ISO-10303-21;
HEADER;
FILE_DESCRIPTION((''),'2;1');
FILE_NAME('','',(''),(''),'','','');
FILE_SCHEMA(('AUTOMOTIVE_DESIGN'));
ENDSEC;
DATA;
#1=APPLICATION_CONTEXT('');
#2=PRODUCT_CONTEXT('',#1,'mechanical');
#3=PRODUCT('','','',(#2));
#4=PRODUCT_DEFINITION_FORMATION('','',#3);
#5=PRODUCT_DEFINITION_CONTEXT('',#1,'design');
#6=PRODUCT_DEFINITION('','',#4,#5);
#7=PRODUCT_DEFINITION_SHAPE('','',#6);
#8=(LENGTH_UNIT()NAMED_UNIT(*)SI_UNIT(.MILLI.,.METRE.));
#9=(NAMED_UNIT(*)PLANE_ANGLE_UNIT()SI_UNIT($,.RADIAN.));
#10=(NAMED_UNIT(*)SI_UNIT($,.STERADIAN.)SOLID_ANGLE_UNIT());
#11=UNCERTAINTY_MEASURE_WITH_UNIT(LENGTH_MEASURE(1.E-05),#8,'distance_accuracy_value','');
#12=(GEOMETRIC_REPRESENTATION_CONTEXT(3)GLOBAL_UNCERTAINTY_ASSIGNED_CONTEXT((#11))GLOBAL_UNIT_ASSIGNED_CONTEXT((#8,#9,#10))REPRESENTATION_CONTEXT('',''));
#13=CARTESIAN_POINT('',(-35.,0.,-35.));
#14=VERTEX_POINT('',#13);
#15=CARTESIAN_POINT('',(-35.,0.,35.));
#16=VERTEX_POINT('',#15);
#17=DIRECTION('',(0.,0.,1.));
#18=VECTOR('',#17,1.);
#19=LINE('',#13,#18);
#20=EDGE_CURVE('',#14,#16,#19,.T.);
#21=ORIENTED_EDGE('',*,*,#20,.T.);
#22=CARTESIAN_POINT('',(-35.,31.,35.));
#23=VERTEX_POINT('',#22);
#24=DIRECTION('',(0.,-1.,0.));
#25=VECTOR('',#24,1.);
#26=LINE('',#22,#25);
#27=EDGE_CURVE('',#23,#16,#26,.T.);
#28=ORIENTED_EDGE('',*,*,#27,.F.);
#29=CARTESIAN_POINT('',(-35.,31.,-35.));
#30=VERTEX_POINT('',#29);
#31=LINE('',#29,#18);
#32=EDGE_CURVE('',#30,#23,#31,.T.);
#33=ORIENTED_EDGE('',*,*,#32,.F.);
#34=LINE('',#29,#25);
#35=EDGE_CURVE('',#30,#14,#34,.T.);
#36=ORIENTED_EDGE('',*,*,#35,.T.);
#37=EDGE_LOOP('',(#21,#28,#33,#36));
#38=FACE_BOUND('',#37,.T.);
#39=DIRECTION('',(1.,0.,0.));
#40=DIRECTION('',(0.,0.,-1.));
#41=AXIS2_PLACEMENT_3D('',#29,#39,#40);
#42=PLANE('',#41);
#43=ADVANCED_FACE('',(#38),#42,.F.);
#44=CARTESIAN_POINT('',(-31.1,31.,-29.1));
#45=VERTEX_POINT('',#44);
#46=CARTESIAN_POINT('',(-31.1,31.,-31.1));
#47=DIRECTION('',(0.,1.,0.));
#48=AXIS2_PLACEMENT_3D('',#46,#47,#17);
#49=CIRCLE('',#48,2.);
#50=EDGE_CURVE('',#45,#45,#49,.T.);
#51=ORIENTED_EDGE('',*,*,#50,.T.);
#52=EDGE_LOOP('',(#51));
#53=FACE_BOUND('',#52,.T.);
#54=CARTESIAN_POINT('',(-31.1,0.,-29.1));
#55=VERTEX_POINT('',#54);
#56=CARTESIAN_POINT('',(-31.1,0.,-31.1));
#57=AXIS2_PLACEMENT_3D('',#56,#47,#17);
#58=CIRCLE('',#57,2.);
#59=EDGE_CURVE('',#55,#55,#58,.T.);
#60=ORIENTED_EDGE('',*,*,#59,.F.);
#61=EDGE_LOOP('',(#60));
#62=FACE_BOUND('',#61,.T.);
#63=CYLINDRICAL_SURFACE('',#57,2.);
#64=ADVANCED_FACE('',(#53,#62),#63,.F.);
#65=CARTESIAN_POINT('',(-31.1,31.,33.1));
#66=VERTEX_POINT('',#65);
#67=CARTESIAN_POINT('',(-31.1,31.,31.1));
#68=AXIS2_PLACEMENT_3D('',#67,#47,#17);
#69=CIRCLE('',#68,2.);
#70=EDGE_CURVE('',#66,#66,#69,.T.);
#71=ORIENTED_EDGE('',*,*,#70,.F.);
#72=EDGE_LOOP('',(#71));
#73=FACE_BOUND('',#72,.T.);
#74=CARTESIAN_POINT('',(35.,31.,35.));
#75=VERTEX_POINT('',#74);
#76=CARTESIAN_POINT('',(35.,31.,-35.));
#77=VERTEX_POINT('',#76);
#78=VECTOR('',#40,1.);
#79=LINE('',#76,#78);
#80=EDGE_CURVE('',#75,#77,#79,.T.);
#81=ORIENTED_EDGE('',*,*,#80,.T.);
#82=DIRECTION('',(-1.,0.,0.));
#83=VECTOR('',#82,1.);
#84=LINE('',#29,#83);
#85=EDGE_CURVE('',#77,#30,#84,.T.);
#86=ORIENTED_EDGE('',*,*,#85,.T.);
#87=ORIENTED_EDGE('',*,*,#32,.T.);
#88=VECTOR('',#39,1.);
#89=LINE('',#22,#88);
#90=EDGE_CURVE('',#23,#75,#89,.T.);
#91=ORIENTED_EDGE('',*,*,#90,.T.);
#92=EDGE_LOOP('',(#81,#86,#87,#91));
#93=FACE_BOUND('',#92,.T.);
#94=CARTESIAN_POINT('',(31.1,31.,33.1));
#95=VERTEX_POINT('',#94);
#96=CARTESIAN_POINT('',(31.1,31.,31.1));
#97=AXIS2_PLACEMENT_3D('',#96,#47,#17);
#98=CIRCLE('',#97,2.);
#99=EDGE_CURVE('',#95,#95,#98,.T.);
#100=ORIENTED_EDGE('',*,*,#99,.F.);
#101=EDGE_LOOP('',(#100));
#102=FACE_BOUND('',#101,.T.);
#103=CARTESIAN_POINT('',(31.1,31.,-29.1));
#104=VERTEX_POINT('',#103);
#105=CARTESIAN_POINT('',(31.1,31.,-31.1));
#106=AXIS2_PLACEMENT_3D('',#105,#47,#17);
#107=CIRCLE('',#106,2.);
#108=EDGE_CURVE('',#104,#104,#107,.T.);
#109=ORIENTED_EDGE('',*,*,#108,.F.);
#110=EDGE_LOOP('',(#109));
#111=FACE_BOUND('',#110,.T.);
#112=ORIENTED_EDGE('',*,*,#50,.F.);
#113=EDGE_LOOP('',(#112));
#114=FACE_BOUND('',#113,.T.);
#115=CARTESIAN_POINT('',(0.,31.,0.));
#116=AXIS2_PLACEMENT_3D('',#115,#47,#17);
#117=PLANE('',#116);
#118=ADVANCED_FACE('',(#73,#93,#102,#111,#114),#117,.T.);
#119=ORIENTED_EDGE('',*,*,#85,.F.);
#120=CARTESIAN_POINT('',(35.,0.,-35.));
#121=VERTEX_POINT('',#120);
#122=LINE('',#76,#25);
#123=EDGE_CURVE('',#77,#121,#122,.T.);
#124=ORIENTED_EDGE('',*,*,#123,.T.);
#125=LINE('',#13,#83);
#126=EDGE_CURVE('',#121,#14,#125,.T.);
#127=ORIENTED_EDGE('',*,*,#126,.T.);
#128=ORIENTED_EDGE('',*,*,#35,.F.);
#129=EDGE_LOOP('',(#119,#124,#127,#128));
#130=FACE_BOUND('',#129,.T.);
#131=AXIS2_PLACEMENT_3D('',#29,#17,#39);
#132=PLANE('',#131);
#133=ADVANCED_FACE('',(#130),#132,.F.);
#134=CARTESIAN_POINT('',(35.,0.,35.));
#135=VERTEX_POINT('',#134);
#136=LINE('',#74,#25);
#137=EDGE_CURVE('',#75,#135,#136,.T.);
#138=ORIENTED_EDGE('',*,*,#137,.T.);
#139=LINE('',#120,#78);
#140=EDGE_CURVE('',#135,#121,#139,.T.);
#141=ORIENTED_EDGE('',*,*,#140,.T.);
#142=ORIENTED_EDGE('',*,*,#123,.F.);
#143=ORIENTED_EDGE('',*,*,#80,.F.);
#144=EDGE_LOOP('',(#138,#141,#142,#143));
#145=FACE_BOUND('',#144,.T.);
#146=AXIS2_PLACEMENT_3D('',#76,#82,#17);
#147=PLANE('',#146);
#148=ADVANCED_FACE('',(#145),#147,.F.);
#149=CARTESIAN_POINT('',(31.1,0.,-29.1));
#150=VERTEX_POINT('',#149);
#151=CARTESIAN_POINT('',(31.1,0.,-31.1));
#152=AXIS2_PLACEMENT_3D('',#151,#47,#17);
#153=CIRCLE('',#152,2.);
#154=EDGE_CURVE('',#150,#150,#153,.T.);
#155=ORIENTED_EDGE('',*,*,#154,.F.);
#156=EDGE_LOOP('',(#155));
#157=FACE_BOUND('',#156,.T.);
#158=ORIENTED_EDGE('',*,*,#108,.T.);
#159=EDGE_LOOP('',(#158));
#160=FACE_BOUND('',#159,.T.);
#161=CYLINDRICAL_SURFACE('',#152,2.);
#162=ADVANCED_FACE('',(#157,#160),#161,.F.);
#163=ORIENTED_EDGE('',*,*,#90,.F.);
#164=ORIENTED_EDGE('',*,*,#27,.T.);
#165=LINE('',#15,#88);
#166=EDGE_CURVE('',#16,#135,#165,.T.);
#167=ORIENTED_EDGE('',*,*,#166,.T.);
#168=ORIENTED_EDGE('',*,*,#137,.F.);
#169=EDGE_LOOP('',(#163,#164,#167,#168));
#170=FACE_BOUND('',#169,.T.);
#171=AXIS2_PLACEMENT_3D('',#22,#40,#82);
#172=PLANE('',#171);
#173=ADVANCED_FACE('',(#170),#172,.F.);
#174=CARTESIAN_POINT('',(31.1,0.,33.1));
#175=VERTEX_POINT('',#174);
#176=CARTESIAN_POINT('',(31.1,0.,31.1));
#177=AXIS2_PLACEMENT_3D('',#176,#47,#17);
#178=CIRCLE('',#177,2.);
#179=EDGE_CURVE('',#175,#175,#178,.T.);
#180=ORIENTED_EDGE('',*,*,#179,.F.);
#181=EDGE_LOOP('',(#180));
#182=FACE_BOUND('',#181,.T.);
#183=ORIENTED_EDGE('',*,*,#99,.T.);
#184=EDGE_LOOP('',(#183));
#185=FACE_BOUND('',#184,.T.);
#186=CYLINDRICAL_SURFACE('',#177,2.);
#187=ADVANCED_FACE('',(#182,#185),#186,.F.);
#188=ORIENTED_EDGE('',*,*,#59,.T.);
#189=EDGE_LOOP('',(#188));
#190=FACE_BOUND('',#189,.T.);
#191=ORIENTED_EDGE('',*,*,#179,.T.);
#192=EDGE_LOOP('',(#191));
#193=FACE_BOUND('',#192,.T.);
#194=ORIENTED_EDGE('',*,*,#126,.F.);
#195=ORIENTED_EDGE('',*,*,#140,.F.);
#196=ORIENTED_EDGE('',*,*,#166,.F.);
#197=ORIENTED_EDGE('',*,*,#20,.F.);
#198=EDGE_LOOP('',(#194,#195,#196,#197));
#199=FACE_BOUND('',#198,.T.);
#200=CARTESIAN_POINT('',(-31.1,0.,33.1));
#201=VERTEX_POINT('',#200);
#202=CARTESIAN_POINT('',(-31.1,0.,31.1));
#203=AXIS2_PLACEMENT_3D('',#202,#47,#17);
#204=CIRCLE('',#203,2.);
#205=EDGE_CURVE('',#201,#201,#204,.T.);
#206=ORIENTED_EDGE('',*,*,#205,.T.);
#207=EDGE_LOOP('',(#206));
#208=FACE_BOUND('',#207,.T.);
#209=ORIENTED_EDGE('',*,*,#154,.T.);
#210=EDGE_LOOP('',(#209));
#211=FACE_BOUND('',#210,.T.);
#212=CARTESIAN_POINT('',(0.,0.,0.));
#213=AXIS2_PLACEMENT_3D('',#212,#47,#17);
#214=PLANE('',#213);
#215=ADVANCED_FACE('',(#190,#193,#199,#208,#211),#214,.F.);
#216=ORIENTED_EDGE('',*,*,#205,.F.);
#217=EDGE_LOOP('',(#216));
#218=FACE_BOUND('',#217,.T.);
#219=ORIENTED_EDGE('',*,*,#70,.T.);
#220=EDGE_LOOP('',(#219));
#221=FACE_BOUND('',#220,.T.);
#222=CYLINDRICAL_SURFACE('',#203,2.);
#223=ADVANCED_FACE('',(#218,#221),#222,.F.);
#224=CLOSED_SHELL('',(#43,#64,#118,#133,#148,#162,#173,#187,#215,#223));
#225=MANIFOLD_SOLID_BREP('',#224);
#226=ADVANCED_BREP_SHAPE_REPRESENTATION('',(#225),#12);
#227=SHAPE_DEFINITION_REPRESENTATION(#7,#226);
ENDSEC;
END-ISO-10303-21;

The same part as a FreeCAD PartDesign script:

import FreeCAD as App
import Part
import Sketcher
Q = App.Units.Quantity


def add_polygon(sketch, points):
    """Adds a closed chain of lines whose ends are joined by coincident constraints."""
    first, n = sketch.GeometryCount, len(points)
    for a, b in zip(points, points[1:] + points[:1]):
        sketch.addGeometry(Part.LineSegment(App.Vector(*a, 0), App.Vector(*b, 0)), False)
    for i in range(n):
        sketch.addConstraint(Sketcher.Constraint("Coincident", first + i, 2, first + (i + 1) % n, 1))

doc = App.newDocument("Part")
body = doc.addObject("PartDesign::Body", "Body")

sketch1 = body.newObject("Sketcher::SketchObject", "Sketch")
sketch1.AttachmentSupport = (doc.getObject("XZ_Plane"), [""])
sketch1.MapMode = "FlatFace"
add_polygon(sketch1, [(-35, -35), (-35, 35), (35, 35), (35, -35)])
sketch1.addConstraint([
    Sketcher.Constraint("Vertical", 0),
    Sketcher.Constraint("Horizontal", 1),
    Sketcher.Constraint("Vertical", 2),
    Sketcher.Constraint("Horizontal", 3),
    Sketcher.Constraint("Symmetric", 0, 2, 2, 2, -1, 1),
    Sketcher.Constraint("Equal", 3, 0),
    Sketcher.Constraint("DistanceX", 1, 1, 1, 2, Q("70 mm")),
])
pad1 = body.newObject("PartDesign::Pad", "Pad")
pad1.Profile = sketch1
pad1.Length = 31
pad1.Reversed = True

sketch2 = body.newObject("Sketcher::SketchObject", "Sketch001")
sketch2.AttachmentSupport = (doc.getObject("XZ_Plane"), [""])
sketch2.MapMode = "FlatFace"
sketch2.AttachmentOffset = App.Placement(App.Vector(0, 0, -31), App.Rotation())
sketch2.addGeometry([
    Part.Circle(App.Vector(-31.1, -31.1, 0), App.Vector(0, 0, 1), 2),
    Part.Circle(App.Vector(31.1, -31.1, 0), App.Vector(0, 0, 1), 2),
    Part.Circle(App.Vector(31.1, 31.1, 0), App.Vector(0, 0, 1), 2),
    Part.Circle(App.Vector(-31.1, 31.1, 0), App.Vector(0, 0, 1), 2),
], False)
sketch2.addConstraint([
    Sketcher.Constraint("Equal", 0, 1),
    Sketcher.Constraint("Equal", 1, 2),
    Sketcher.Constraint("Equal", 2, 3),
    Sketcher.Constraint("Symmetric", 0, 3, 2, 3, -1, 1),
    Sketcher.Constraint("Symmetric", 1, 3, 3, 3, -1, 1),
    Sketcher.Constraint("Symmetric", 0, 3, 1, 3, -2),
    Sketcher.Constraint("Diameter", 0, Q("4 mm")),
    Sketcher.Constraint("DistanceX", 0, 3, -1, 1, Q("31.1 mm")),
    Sketcher.Constraint("DistanceY", 0, 3, -1, 1, Q("31.1 mm")),
])
pocket1 = body.newObject("PartDesign::Pocket", "Pocket")
pocket1.Profile = sketch2
pocket1.Type = "ThroughAll"
pocket1.Reversed = True

doc.recompute()
